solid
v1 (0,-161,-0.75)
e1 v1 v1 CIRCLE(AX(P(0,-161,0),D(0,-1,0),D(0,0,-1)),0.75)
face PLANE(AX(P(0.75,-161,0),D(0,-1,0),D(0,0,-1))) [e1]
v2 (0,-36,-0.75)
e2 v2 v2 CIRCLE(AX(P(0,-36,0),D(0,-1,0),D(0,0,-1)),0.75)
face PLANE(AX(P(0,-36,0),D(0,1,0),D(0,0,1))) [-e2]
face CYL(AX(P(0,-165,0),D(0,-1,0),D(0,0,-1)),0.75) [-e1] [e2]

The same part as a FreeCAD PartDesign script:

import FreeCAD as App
import Part
import Sketcher
from FreeCAD import Vector
Q = App.Units.Quantity

doc = App.newDocument("Part")
body = doc.addObject("PartDesign::Body", "Body")

# Sketch on XY plane
sketch1 = doc.addObject("Sketcher::SketchObject", "Sketch")
body.addObject(sketch1)
sketch1.AttachmentSupport = (doc.XY_Plane, [""])
sketch1.MapMode = "FlatFace"
sketch1.addGeometry(Part.LineSegment(Vector(0, -36, 0), Vector(0, -161, 0)), False)
sketch1.addGeometry(Part.LineSegment(Vector(0, -161, 0), Vector(0.8, -161, 0)), False)
sketch1.addGeometry(Part.LineSegment(Vector(0.8, -161, 0), Vector(0.8, -36, 0)), False)
sketch1.addGeometry(Part.LineSegment(Vector(0.8, -36, 0), Vector(0, -36, 0)), False)
sketch1.addConstraint(Sketcher.Constraint("Coincident", 0, 2, 1, 1))
sketch1.addConstraint(Sketcher.Constraint("Coincident", 1, 2, 2, 1))
sketch1.addConstraint(Sketcher.Constraint("Coincident", 2, 2, 3, 1))
sketch1.addConstraint(Sketcher.Constraint("Coincident", 3, 2, 0, 1))
sketch1.addConstraint(Sketcher.Constraint("Vertical", 0))
sketch1.addConstraint(Sketcher.Constraint("Horizontal", 1))
sketch1.addConstraint(Sketcher.Constraint("Vertical", 2))
sketch1.addConstraint(Sketcher.Constraint("Horizontal", 3))
sketch1.addConstraint(Sketcher.Constraint("PointOnObject", 0, 2, -2))
sketch1.addConstraint(Sketcher.Constraint("DistanceY", 0, 2, 0, 1, Q("125 mm")))
sketch1.addConstraint(Sketcher.Constraint("DistanceY", 0, 2, -1, 1, Q("161 mm")))
sketch1.addConstraint(Sketcher.Constraint("DistanceX", 1, 1, 1, 2, Q("0.75 mm")))
revolution = doc.addObject("PartDesign::Revolution", "Revolution")
body.addObject(revolution)
revolution.Profile = sketch1
revolution.ReferenceAxis = (sketch1, ["V_Axis"])
revolution.Angle = 360

doc.recompute()
